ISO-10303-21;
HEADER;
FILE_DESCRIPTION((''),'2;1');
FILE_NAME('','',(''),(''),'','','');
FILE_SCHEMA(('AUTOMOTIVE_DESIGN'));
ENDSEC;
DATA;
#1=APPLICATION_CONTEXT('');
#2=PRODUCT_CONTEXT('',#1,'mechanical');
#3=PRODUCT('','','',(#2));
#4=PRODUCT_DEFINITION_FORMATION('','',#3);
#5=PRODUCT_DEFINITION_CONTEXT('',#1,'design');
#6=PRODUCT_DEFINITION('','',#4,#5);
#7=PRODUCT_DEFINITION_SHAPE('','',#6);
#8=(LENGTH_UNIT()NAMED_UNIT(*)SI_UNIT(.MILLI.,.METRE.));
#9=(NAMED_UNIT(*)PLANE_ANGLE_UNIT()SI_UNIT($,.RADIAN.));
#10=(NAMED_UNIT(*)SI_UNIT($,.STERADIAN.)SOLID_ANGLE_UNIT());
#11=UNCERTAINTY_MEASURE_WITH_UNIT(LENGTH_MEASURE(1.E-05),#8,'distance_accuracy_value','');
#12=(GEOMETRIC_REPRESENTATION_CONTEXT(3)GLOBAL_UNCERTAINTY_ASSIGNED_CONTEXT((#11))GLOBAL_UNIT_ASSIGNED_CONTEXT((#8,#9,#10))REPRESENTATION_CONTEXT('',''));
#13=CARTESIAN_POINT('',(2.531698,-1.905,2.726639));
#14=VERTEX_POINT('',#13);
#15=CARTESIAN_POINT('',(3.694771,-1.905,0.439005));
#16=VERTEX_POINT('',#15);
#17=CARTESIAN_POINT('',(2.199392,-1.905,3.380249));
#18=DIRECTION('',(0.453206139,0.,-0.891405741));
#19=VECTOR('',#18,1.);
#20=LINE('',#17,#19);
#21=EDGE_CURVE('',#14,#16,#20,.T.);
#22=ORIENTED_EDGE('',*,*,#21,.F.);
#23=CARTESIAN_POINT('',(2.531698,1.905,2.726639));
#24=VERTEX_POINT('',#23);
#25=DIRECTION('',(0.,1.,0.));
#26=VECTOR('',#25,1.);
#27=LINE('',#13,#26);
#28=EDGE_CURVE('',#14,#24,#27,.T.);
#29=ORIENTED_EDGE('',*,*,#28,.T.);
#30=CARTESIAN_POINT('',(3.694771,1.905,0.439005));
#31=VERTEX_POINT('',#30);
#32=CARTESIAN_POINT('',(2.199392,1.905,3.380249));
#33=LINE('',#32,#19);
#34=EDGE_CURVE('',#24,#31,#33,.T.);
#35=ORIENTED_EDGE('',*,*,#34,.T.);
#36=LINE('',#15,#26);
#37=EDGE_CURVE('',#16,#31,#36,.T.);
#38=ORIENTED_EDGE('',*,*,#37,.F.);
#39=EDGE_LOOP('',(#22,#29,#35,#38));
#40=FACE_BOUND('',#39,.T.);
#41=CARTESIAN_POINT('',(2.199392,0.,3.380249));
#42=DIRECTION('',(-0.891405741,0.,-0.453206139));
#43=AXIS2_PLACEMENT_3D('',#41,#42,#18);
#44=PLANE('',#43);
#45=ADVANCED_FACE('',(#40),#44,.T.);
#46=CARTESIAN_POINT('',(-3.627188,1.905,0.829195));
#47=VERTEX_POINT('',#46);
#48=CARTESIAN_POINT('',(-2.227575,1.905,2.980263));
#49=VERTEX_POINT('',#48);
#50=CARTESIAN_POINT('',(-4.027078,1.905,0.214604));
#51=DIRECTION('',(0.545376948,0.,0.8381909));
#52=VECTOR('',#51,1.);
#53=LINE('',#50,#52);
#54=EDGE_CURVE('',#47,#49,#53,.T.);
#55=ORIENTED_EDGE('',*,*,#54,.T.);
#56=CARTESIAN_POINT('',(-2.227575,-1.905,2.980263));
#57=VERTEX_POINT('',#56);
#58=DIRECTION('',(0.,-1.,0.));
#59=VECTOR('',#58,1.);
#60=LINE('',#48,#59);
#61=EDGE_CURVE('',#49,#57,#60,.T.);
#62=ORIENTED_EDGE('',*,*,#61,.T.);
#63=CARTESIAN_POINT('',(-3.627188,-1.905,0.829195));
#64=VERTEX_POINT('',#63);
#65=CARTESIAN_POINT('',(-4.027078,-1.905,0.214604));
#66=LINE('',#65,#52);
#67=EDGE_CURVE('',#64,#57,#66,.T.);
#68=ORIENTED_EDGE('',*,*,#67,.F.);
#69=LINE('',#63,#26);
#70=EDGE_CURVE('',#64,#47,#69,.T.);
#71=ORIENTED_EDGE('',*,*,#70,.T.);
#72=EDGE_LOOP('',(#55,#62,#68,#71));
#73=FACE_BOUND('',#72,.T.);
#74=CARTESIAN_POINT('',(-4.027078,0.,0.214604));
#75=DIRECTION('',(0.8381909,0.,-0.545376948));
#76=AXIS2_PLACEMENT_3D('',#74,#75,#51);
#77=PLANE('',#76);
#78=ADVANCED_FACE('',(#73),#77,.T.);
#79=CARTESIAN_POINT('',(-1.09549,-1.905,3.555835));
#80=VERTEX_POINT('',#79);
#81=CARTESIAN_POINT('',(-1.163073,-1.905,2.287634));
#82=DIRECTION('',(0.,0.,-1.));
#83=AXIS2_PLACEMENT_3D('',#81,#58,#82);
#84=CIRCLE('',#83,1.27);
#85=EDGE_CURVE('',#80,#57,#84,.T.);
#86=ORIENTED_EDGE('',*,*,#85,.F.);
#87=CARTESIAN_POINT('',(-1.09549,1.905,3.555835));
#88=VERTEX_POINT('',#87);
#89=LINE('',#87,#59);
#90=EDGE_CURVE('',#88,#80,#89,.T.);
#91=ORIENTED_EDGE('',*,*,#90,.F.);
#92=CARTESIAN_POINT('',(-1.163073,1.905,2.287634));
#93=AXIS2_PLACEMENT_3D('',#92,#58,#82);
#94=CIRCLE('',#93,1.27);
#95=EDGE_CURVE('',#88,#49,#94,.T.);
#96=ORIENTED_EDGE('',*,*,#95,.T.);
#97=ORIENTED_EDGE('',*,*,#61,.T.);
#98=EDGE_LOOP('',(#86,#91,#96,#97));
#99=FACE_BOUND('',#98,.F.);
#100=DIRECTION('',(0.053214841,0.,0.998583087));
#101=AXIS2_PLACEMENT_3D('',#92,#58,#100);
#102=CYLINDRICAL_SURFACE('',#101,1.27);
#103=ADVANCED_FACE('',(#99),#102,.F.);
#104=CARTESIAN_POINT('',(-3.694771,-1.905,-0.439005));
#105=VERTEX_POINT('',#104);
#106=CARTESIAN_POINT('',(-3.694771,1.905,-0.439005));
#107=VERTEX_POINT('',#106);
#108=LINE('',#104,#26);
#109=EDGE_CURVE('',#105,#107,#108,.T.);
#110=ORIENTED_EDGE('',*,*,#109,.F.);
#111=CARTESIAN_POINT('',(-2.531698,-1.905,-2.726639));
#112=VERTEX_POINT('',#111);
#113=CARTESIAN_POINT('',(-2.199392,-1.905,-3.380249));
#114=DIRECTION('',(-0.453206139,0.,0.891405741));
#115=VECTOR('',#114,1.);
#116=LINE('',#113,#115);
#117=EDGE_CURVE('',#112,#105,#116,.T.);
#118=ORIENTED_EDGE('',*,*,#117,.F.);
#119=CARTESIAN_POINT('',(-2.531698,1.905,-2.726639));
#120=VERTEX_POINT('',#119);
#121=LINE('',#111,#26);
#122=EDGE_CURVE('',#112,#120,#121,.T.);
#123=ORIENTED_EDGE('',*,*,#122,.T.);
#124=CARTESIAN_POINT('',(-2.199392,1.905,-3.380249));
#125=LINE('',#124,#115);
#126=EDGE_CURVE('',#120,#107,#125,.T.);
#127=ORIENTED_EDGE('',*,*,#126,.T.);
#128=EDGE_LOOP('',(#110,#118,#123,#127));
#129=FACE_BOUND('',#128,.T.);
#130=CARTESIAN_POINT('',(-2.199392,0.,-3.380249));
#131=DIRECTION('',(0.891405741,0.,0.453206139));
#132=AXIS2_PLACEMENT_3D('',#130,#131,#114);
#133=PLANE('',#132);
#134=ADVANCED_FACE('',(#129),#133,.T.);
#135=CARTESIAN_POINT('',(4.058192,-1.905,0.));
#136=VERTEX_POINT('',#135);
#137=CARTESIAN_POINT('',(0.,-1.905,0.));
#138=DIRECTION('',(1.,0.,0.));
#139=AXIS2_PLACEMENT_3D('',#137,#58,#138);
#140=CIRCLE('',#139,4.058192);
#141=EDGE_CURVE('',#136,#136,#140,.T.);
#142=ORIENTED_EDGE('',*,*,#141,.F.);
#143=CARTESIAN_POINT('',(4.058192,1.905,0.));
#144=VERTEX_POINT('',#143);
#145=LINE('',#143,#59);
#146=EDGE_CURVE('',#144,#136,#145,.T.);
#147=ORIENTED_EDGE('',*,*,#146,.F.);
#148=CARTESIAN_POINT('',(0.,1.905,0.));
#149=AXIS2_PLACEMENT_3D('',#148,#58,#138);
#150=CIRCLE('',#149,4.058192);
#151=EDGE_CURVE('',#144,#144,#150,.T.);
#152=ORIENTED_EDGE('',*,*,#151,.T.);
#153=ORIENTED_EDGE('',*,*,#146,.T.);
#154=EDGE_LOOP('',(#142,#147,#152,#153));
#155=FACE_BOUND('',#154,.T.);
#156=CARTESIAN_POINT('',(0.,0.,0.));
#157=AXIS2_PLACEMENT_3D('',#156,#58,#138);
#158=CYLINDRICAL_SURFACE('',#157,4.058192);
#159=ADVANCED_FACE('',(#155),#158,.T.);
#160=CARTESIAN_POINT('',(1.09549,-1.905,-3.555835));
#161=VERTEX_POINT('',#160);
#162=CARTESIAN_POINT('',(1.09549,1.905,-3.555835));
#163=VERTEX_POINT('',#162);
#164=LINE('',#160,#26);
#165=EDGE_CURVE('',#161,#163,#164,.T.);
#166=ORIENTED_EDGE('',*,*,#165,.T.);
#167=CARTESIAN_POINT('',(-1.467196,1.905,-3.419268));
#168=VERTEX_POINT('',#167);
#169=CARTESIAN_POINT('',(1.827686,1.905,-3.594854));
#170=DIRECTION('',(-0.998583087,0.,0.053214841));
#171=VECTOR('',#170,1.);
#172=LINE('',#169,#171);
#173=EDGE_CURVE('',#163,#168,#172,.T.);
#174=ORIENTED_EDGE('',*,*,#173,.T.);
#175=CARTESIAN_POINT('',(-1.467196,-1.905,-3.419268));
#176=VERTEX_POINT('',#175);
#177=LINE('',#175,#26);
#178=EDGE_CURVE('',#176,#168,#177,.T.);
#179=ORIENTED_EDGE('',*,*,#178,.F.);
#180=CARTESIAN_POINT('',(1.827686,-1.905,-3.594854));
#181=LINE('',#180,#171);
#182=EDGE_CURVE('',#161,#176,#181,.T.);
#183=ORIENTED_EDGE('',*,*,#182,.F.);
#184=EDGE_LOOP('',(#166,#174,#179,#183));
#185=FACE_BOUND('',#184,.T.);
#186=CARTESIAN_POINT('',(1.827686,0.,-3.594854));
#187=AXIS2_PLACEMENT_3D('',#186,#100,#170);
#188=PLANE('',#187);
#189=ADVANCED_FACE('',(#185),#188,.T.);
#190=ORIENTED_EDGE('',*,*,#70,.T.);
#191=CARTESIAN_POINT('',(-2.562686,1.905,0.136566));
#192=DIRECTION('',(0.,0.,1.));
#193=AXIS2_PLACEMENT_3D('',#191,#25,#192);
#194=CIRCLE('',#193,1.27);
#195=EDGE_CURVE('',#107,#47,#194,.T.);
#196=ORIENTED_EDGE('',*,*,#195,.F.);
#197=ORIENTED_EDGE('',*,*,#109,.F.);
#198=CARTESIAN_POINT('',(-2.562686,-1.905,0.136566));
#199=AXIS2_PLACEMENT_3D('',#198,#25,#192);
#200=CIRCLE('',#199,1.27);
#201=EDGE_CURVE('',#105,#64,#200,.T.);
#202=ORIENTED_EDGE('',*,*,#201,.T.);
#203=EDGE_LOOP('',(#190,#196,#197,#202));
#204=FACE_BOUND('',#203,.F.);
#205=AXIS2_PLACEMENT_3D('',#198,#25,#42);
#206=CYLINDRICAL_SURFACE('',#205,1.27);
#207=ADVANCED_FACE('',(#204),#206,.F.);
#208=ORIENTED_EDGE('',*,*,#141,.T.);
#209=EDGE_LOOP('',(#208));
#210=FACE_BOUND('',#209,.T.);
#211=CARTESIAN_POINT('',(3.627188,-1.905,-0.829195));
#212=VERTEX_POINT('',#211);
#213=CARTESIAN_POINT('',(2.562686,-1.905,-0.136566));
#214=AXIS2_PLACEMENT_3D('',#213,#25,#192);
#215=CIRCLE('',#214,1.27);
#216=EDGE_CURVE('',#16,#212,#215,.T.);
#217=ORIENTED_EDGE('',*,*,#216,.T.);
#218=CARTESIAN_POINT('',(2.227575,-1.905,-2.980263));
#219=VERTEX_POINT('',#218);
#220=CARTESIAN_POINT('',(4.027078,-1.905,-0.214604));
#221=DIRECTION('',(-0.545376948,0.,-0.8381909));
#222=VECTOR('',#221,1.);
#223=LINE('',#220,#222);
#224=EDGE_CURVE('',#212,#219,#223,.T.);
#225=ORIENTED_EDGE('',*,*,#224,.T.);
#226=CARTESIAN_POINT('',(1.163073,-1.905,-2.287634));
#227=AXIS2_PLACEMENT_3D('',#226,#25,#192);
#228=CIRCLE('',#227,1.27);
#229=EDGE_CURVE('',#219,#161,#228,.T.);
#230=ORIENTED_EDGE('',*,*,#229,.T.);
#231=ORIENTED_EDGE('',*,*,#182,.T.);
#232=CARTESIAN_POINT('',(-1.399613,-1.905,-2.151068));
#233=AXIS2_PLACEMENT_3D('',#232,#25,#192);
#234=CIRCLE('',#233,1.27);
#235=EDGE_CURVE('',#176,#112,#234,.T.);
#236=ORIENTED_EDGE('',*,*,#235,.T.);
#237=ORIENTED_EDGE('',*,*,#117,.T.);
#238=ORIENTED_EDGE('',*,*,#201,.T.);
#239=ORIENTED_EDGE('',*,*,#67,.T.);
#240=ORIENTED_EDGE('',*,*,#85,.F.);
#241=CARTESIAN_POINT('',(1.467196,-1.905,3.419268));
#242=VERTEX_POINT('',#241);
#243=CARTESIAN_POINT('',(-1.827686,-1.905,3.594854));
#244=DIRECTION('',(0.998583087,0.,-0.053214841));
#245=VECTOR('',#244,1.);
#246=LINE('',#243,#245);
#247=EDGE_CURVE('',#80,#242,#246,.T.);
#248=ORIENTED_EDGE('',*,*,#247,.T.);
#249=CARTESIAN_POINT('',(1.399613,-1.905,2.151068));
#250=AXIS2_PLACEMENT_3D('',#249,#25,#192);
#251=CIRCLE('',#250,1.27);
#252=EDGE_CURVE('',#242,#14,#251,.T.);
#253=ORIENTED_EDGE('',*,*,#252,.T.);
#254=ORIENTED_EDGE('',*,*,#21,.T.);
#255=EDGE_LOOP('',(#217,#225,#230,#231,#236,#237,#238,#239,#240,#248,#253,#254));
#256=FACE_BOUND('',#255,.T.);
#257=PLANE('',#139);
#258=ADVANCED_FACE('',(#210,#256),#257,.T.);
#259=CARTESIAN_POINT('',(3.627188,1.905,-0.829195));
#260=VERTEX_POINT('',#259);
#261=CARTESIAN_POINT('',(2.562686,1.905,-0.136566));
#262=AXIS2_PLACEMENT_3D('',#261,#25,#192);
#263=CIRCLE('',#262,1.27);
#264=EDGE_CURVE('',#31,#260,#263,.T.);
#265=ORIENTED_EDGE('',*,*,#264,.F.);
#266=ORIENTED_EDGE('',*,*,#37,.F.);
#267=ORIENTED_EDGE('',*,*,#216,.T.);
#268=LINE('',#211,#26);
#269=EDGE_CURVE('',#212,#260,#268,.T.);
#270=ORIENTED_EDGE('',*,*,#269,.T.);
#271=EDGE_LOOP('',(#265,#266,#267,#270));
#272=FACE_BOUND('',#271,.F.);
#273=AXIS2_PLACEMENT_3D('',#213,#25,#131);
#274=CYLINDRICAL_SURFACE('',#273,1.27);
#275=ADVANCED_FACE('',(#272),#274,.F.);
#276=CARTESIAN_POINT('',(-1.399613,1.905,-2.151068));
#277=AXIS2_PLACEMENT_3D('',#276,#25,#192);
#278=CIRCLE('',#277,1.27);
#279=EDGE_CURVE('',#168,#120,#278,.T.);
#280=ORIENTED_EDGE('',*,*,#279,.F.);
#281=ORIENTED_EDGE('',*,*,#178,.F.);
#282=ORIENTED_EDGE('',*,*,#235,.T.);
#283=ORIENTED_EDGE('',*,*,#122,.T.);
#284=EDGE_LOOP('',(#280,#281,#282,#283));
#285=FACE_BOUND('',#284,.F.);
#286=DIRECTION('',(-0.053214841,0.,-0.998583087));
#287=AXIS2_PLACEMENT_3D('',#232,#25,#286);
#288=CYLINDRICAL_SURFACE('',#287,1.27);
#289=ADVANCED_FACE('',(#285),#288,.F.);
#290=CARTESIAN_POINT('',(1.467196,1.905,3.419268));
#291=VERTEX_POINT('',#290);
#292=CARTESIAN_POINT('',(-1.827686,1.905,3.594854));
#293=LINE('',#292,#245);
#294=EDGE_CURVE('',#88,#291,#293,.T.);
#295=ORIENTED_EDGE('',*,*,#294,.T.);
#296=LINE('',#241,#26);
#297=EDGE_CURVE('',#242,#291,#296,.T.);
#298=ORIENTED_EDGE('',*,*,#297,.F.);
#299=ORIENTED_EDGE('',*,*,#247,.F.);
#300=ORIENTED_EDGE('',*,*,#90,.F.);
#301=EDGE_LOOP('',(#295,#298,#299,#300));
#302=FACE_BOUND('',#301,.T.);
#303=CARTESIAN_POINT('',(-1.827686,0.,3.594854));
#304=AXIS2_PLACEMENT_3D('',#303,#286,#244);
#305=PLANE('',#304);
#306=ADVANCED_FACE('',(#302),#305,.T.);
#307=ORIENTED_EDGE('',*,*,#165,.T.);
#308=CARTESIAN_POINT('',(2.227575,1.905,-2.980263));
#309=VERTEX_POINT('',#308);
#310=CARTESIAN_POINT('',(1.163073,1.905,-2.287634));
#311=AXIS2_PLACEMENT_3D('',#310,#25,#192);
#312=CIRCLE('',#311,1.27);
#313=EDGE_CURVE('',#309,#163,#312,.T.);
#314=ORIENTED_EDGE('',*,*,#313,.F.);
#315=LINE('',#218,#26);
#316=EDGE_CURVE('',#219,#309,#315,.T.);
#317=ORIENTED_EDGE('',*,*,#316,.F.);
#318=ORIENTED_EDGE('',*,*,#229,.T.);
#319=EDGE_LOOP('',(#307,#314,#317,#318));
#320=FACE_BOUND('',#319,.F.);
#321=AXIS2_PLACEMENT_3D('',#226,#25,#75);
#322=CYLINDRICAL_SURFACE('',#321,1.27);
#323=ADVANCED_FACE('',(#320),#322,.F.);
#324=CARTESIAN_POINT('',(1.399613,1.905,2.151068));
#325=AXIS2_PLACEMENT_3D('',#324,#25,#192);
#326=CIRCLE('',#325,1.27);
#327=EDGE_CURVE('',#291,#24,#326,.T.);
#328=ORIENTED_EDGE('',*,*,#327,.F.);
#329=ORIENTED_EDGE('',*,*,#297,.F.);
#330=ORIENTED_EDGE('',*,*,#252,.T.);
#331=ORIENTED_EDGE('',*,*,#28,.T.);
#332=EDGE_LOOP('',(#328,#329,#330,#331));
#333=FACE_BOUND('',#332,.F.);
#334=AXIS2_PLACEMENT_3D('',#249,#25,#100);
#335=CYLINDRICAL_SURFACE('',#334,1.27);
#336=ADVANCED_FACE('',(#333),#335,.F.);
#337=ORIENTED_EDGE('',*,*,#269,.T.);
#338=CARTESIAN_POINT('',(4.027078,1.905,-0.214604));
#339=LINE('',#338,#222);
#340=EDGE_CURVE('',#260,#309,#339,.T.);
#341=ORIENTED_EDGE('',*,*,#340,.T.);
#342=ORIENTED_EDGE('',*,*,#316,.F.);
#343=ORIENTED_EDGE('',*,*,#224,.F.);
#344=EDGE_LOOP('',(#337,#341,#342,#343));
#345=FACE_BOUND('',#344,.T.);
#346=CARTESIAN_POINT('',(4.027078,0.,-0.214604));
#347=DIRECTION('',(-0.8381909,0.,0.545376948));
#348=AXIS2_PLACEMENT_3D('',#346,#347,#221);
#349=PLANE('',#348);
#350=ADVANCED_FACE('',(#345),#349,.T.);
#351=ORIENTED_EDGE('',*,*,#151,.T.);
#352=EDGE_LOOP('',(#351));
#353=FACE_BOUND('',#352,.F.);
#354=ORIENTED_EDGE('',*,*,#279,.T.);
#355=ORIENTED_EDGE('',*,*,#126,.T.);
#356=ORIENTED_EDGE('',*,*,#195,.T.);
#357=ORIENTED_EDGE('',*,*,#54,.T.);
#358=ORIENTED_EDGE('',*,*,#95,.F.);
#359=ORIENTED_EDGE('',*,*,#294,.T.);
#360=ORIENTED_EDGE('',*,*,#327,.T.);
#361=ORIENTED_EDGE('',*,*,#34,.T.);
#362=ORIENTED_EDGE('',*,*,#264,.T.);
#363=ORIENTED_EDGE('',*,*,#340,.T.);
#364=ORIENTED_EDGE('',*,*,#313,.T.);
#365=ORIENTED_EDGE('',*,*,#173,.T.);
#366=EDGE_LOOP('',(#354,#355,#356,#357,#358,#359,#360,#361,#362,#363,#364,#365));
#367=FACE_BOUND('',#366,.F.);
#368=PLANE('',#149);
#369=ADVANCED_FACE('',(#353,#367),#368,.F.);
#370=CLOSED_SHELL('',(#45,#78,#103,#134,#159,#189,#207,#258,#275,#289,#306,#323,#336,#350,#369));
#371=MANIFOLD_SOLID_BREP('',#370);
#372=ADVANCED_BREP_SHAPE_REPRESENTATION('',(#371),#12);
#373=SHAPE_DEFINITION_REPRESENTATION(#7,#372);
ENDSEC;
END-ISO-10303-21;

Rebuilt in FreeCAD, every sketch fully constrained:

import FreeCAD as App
import Part
import Sketcher

V = App.Vector
Q = App.Units.Quantity


def edges_at(feature, points):
    """Names of the edges that pass closest to the given points."""
    edges = feature.Shape.Edges
    near = lambda p: min(range(len(edges)), key=lambda i: edges[i].distToShape(Part.Vertex(*p))[0])
    return sorted({f"Edge{near(p) + 1}" for p in points})

doc = App.newDocument("Part")
body = doc.addObject("PartDesign::Body", "Body")

# Sketch on XZ plane
sketch1 = doc.addObject("Sketcher::SketchObject", "Sketch")
body.addObject(sketch1)
sketch1.AttachmentSupport = (doc.XZ_Plane, [""])
sketch1.MapMode = "FlatFace"
sketch1.addGeometry(Part.Circle(V(0, 0, 0), V(0, 0, 1), 4.058192), False)
sketch1.addGeometry(Part.LineSegment(V(-4.027078, 0.214604, 0), V(-1.827686, 3.594854, 0)), False)
sketch1.addGeometry(Part.LineSegment(V(-1.827686, 3.594854, 0), V(2.199392, 3.380249, 0)), False)
sketch1.addGeometry(Part.LineSegment(V(2.199392, 3.380249, 0), V(4.027078, -0.214604, 0)), False)
sketch1.addGeometry(Part.LineSegment(V(4.027078, -0.214604, 0), V(1.827686, -3.594854, 0)), False)
sketch1.addGeometry(Part.LineSegment(V(1.827686, -3.594854, 0), V(-2.199392, -3.380249, 0)), False)
sketch1.addGeometry(Part.LineSegment(V(-2.199392, -3.380249, 0), V(-4.027078, 0.214604, 0)), False)
sketch1.addConstraint(Sketcher.Constraint("Coincident", 1, 2, 2, 1))
sketch1.addConstraint(Sketcher.Constraint("Coincident", 2, 2, 3, 1))
sketch1.addConstraint(Sketcher.Constraint("Coincident", 3, 2, 4, 1))
sketch1.addConstraint(Sketcher.Constraint("Coincident", 4, 2, 5, 1))
sketch1.addConstraint(Sketcher.Constraint("Coincident", 5, 2, 6, 1))
sketch1.addConstraint(Sketcher.Constraint("Coincident", 6, 2, 1, 1))
sketch1.addConstraint(Sketcher.Constraint("Coincident", 0, 3, -1, 1))
sketch1.addConstraint(Sketcher.Constraint("Symmetric", 1, 2, 4, 2, -1, 1))
sketch1.addConstraint(Sketcher.Constraint("Symmetric", 2, 2, 5, 2, -1, 1))
sketch1.addConstraint(Sketcher.Constraint("Symmetric", 3, 2, 6, 2, -1, 1))
sketch1.addConstraint(Sketcher.Constraint("Equal", 1, 2))
sketch1.addConstraint(Sketcher.Constraint("Equal", 2, 3))
sketch1.addConstraint(Sketcher.Constraint("Diameter", 0, Q("8.116383 mm")))
sketch1.addConstraint(Sketcher.Constraint("DistanceY", 5, 2, 2, 2, Q("6.760498 mm")))
sketch1.addConstraint(Sketcher.Constraint("Distance", 1, Q("4.032792 mm")))
sketch1.addConstraint(Sketcher.Constraint("DistanceX", -1, 1, 2, 2, Q("2.199392 mm")))
sketch1.addConstraint(Sketcher.Constraint("DistanceX", 4, 2, 3, 2, Q("2.199392 mm")))
pad1 = doc.addObject("PartDesign::Pad", "Pad")
body.addObject(pad1)
pad1.Profile = sketch1
pad1.Length = Q("0.15 in")
pad1.Midplane = True
doc.recompute()

fillet = doc.addObject("PartDesign::Fillet", "Fillet")
body.addObject(fillet)
fillet.Base = (pad1, edges_at(pad1, [
    (-1.828, 0, 3.595),
    (2.199, 0, 3.38),
    (4.027, 0, -0.215),
    (-4.027, 0, 0.215),
    (-2.199, 0, -3.38),
    (1.828, 0, -3.595),
]))
fillet.Radius = Q("0.05 in")

doc.recompute()
